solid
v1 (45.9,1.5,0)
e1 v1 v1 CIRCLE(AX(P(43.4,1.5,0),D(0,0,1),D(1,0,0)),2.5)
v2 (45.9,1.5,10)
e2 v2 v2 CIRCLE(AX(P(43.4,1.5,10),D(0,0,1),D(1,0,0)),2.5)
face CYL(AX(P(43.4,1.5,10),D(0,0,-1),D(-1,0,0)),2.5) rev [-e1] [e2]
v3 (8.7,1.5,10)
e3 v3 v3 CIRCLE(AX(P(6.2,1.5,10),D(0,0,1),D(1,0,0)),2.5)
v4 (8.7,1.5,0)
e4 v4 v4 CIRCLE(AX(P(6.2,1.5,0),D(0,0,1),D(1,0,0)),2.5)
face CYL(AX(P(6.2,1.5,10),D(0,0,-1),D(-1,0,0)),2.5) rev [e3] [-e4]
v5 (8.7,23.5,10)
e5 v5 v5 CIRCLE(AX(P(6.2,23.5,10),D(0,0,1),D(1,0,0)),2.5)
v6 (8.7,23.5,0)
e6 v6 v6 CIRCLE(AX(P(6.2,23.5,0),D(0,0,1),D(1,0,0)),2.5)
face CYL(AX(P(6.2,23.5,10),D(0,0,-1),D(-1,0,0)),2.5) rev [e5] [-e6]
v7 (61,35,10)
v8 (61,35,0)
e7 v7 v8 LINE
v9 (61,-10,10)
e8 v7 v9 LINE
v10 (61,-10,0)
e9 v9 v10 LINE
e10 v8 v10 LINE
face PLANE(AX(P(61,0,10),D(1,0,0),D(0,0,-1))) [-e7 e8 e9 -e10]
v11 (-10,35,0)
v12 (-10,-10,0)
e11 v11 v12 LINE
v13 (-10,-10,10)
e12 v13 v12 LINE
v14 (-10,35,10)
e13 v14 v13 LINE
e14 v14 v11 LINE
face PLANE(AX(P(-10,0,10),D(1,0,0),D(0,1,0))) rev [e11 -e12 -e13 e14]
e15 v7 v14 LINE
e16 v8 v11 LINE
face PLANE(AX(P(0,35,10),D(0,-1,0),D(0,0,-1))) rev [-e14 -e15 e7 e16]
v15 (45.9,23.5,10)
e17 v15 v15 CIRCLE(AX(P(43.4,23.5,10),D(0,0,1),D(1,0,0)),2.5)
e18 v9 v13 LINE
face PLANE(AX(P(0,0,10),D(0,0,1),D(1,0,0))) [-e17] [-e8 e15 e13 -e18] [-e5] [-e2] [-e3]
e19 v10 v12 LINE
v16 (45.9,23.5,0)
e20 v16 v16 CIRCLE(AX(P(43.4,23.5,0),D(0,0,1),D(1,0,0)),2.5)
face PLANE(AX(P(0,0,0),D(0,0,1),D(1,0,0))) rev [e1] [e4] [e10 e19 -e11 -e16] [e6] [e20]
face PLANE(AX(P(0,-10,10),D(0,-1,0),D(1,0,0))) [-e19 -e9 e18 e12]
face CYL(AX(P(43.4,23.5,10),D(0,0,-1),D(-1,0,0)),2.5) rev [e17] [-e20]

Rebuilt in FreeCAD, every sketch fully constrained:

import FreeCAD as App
import Part
import Sketcher


def add_polygon(sketch, points):
    """Adds a closed chain of lines whose ends are joined by coincident constraints."""
    first, n = sketch.GeometryCount, len(points)
    for a, b in zip(points, points[1:] + points[:1]):
        sketch.addGeometry(Part.LineSegment(App.Vector(*a, 0), App.Vector(*b, 0)), False)
    for i in range(n):
        sketch.addConstraint(Sketcher.Constraint("Coincident", first + i, 2, first + (i + 1) % n, 1))

doc = App.newDocument("Part")
body = doc.addObject("PartDesign::Body", "Body")

# Sketch on XY plane
sketch1 = body.newObject("Sketcher::SketchObject", "Sketch")
sketch1.AttachmentSupport = (doc.getObject("XY_Plane"), [""])
sketch1.MapMode = "FlatFace"
add_polygon(sketch1, [(-10, 35), (-10, -10), (61, -10), (61, 35)])  # lines 0-3
sketch1.addGeometry(Part.Circle(App.Vector(6.2, 1.5, 0), App.Vector(0, 0, 1), 2.5), False)  # 4
sketch1.addGeometry(Part.Circle(App.Vector(43.4, 1.5, 0), App.Vector(0, 0, 1), 2.5), False)  # 5
sketch1.addGeometry(Part.Circle(App.Vector(6.2, 23.5, 0), App.Vector(0, 0, 1), 2.5), False)  # 6
sketch1.addGeometry(Part.Circle(App.Vector(43.4, 23.5, 0), App.Vector(0, 0, 1), 2.5), False)  # 7
sketch1.addConstraint(Sketcher.Constraint("Vertical", 0))
sketch1.addConstraint(Sketcher.Constraint("Horizontal", 1))
sketch1.addConstraint(Sketcher.Constraint("Vertical", 2))
sketch1.addConstraint(Sketcher.Constraint("Horizontal", 3))
sketch1.addConstraint(Sketcher.Constraint("Equal", 4, 5))
sketch1.addConstraint(Sketcher.Constraint("Equal", 5, 6))
sketch1.addConstraint(Sketcher.Constraint("Equal", 6, 7))
sketch1.addConstraint(Sketcher.Constraint("Horizontal", 4, 3, 5, 3))
sketch1.addConstraint(Sketcher.Constraint("Horizontal", 6, 3, 7, 3))
sketch1.addConstraint(Sketcher.Constraint("Vertical", 4, 3, 6, 3))
sketch1.addConstraint(Sketcher.Constraint("Vertical", 5, 3, 7, 3))
sketch1.addConstraint(Sketcher.Constraint("Diameter", 4, 5.0))
sketch1.addConstraint(Sketcher.Constraint("DistanceX", 1, 1, 1, 2, 71.0))
sketch1.addConstraint(Sketcher.Constraint("DistanceY", 0, 2, 0, 1, 45.0))
sketch1.addConstraint(Sketcher.Constraint("DistanceX", 0, 2, -1, 1, 10.0))
sketch1.addConstraint(Sketcher.Constraint("DistanceY", 0, 2, -1, 1, 10.0))
sketch1.addConstraint(Sketcher.Constraint("DistanceY", 4, 3, 6, 3, 22.0))
sketch1.addConstraint(Sketcher.Constraint("DistanceX", -1, 1, 4, 3, 6.2))
sketch1.addConstraint(Sketcher.Constraint("DistanceY", -1, 1, 4, 3, 1.5))
sketch1.addConstraint(Sketcher.Constraint("DistanceX", -1, 1, 5, 3, 43.4))
pad1 = body.newObject("PartDesign::Pad", "Pad")
pad1.Profile = sketch1
pad1.Length = 10

doc.recompute()
